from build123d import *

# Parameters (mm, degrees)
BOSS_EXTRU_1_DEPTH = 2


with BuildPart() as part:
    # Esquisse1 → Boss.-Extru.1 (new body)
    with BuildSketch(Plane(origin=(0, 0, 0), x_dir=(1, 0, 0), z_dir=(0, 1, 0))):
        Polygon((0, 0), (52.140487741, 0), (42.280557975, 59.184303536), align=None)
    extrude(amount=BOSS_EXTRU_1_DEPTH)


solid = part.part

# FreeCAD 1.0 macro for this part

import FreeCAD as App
import Part
import Sketcher
from FreeCAD import Vector


def add_polygon(sketch, points):
    """Adds a closed chain of lines whose ends are joined by coincident constraints."""
    first, n = sketch.GeometryCount, len(points)
    for a, b in zip(points, points[1:] + points[:1]):
        sketch.addGeometry(Part.LineSegment(App.Vector(*a, 0), App.Vector(*b, 0)), False)
    for i in range(n):
        sketch.addConstraint(Sketcher.Constraint("Coincident", first + i, 2, first + (i + 1) % n, 1))

doc = App.newDocument("Part")
body = doc.addObject("PartDesign::Body", "Body")

sketch1 = doc.addObject("Sketcher::SketchObject", "Sketch")
body.addObject(sketch1)
sketch1.AttachmentSupport = (doc.XZ_Plane, [""])
sketch1.MapMode = "FlatFace"
add_polygon(sketch1, [(0, 0), (52, 0), (42, -59)])
sketch1.addConstraint([
    Sketcher.Constraint("Horizontal", 0),
    Sketcher.Constraint("Coincident", 2, 2, -1, 1),
    Sketcher.Constraint("Distance", 1, 60.0),
    Sketcher.Constraint("DistanceX", 0, 1, 0, 2, 52.140488),
    Sketcher.Constraint("DistanceX", 1, 2, 0, 2, 9.85993),
])
pad1 = doc.addObject("PartDesign::Pad", "Pad")
body.addObject(pad1)
pad1.Profile = sketch1
pad1.Length = 2
pad1.Reversed = True

doc.recompute()
